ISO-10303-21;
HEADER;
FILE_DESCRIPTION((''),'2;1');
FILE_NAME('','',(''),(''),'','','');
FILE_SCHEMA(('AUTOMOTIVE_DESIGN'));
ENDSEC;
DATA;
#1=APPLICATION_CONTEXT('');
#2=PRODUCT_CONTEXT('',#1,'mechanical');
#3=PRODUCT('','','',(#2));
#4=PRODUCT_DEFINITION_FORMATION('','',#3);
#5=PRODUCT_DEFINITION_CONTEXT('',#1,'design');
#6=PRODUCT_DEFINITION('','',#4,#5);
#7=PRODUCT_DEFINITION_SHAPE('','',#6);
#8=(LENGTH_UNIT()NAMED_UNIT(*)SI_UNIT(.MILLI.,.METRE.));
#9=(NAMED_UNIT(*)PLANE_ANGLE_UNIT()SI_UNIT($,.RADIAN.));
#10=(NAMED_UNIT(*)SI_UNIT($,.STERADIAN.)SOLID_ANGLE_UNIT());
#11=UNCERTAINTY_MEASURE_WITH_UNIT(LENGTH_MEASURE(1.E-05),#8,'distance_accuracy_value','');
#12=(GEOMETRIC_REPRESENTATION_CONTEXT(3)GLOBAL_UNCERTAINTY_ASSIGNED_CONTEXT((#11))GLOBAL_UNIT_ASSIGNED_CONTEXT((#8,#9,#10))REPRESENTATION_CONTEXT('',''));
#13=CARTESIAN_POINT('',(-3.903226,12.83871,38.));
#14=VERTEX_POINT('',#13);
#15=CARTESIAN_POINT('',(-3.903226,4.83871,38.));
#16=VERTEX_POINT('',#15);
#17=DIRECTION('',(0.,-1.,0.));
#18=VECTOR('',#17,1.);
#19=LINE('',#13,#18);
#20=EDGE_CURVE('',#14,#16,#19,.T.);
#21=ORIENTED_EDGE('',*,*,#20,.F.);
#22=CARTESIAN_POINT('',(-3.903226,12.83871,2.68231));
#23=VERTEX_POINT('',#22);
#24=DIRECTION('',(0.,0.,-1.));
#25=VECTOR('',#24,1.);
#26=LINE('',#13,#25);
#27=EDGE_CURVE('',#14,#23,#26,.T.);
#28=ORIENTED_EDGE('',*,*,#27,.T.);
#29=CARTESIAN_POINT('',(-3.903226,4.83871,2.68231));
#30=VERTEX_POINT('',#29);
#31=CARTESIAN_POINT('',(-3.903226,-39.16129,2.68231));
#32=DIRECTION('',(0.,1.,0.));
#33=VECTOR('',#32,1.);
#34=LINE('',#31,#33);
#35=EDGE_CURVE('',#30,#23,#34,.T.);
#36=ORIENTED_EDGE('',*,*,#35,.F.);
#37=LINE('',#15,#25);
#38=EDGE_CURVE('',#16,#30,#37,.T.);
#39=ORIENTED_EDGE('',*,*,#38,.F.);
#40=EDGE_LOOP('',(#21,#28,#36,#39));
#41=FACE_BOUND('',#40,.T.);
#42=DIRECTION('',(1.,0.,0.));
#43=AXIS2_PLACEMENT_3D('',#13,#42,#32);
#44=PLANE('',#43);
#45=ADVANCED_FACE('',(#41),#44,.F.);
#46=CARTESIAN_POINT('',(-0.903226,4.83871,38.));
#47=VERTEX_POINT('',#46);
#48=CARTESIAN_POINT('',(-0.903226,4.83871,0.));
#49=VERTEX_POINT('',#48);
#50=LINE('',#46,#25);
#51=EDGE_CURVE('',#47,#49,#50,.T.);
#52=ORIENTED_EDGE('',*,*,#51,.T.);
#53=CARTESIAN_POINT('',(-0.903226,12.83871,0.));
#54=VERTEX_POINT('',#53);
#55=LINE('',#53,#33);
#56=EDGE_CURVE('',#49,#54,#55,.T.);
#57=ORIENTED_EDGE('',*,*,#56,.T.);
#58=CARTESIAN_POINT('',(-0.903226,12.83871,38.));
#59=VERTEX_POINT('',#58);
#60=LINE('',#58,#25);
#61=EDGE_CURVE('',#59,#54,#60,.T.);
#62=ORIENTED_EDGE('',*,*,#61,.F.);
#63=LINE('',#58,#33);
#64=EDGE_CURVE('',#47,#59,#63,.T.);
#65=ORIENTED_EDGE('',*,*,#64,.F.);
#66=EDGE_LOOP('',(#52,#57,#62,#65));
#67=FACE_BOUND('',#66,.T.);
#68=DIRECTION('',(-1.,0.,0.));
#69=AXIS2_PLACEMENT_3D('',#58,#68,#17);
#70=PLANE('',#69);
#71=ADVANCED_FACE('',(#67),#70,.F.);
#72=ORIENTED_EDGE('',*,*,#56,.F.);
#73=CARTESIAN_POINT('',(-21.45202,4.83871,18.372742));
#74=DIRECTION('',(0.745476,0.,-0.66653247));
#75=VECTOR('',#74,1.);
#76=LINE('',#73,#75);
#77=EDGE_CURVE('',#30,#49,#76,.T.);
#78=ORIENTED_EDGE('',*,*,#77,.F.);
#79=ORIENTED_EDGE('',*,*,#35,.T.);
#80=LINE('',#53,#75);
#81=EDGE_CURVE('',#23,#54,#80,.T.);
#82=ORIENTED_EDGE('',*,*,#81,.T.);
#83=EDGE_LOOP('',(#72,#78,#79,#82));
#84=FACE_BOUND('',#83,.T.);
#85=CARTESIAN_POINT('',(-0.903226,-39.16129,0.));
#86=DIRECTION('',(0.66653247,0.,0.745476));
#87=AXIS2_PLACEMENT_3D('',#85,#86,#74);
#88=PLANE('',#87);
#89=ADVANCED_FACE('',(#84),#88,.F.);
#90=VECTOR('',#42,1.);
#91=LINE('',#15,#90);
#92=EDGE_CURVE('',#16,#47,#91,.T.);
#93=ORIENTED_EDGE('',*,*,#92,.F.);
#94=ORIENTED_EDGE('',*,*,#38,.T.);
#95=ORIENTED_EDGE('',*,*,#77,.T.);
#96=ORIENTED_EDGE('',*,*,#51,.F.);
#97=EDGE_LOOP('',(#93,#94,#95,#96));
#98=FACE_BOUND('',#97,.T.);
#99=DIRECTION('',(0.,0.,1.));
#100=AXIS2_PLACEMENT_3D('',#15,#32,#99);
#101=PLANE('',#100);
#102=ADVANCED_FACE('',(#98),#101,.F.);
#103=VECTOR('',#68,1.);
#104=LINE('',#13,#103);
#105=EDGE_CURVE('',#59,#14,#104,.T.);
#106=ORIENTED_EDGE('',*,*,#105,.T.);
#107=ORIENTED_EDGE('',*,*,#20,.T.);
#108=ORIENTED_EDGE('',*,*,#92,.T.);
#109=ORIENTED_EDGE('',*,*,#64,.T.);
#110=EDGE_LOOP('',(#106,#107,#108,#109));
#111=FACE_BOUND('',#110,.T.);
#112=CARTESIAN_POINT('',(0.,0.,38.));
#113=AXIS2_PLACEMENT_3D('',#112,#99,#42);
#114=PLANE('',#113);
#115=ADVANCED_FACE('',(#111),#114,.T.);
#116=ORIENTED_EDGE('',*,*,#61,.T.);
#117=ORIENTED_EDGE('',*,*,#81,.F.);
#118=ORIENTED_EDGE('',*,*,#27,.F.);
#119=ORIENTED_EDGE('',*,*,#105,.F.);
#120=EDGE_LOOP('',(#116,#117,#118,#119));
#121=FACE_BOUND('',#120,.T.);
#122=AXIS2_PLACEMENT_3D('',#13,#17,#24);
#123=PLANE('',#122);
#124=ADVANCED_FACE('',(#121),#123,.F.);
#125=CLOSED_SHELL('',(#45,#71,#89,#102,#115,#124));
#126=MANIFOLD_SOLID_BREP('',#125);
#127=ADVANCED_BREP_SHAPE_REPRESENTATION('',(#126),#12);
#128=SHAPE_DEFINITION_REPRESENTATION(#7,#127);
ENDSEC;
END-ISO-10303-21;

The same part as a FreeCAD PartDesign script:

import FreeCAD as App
import Part
import Sketcher
from FreeCAD import Vector
Q = App.Units.Quantity

doc = App.newDocument("Part")
body = doc.addObject("PartDesign::Body", "Body")

sketch1 = doc.addObject("Sketcher::SketchObject", "Sketch")
body.addObject(sketch1)
sketch1.AttachmentSupport = (doc.XY_Plane, [""])
sketch1.MapMode = "FlatFace"
sketch1.addGeometry(Part.LineSegment(Vector(-3.9, 12.8, 0), Vector(-3.9, 4.8, 0)), False)
sketch1.addGeometry(Part.LineSegment(Vector(-3.9, 4.8, 0), Vector(-0.9, 4.8, 0)), False)
sketch1.addGeometry(Part.LineSegment(Vector(-0.9, 4.8, 0), Vector(-0.9, 12.8, 0)), False)
sketch1.addGeometry(Part.LineSegment(Vector(-0.9, 12.8, 0), Vector(-3.9, 12.8, 0)), False)
sketch1.addConstraint(Sketcher.Constraint("Coincident", 0, 2, 1, 1))
sketch1.addConstraint(Sketcher.Constraint("Coincident", 1, 2, 2, 1))
sketch1.addConstraint(Sketcher.Constraint("Coincident", 2, 2, 3, 1))
sketch1.addConstraint(Sketcher.Constraint("Coincident", 3, 2, 0, 1))
sketch1.addConstraint(Sketcher.Constraint("Vertical", 0))
sketch1.addConstraint(Sketcher.Constraint("Horizontal", 1))
sketch1.addConstraint(Sketcher.Constraint("Vertical", 2))
sketch1.addConstraint(Sketcher.Constraint("Horizontal", 3))
sketch1.addConstraint(Sketcher.Constraint("DistanceX", 1, 1, 1, 2, 3.0))
sketch1.addConstraint(Sketcher.Constraint("DistanceY", 0, 2, 0, 1, 8.0))
sketch1.addConstraint(Sketcher.Constraint("DistanceY", -1, 1, 0, 2, 4.83871))
sketch1.addConstraint(Sketcher.Constraint("DistanceX", 0, 2, -1, 1, 3.903226))
pad1 = doc.addObject("PartDesign::Pad", "Pad")
body.addObject(pad1)
pad1.Profile = sketch1
pad1.Length = 38

sketch2 = doc.addObject("Sketcher::SketchObject", "Sketch001")
body.addObject(sketch2)
sketch2.AttachmentSupport = (doc.XZ_Plane, [""])
sketch2.MapMode = "FlatFace"
sketch2.AttachmentOffset = App.Placement(Vector(0, 0, -12.83871), App.Rotation())
sketch2.addGeometry(Part.LineSegment(Vector(-3.9, 2.7, 0), Vector(-0.9, 0, 0)), False)
sketch2.addGeometry(Part.LineSegment(Vector(-0.9, 0, 0), Vector(-3.9, 0, 0)), False)
sketch2.addGeometry(Part.LineSegment(Vector(-3.9, 0, 0), Vector(-3.9, 2.7, 0)), False)
sketch2.addConstraint(Sketcher.Constraint("Coincident", 0, 2, 1, 1))
sketch2.addConstraint(Sketcher.Constraint("Coincident", 1, 2, 2, 1))
sketch2.addConstraint(Sketcher.Constraint("Coincident", 2, 2, 0, 1))
sketch2.addConstraint(Sketcher.Constraint("Horizontal", 1))
sketch2.addConstraint(Sketcher.Constraint("Vertical", 2))
sketch2.addConstraint(Sketcher.Constraint("PointOnObject", 0, 2, -1))
sketch2.addConstraint(Sketcher.Constraint("DistanceX", 1, 2, 1, 1, 3.0))
sketch2.addConstraint(Sketcher.Constraint("Angle", 0, Q("-41.8 deg")))
sketch2.addConstraint(Sketcher.Constraint("DistanceX", 0, 2, -1, 1, 0.903226))
pocket1 = doc.addObject("PartDesign::Pocket", "Pocket")
body.addObject(pocket1)
pocket1.Profile = sketch2
pocket1.Length = 52
pocket1.Reversed = True

doc.recompute()
